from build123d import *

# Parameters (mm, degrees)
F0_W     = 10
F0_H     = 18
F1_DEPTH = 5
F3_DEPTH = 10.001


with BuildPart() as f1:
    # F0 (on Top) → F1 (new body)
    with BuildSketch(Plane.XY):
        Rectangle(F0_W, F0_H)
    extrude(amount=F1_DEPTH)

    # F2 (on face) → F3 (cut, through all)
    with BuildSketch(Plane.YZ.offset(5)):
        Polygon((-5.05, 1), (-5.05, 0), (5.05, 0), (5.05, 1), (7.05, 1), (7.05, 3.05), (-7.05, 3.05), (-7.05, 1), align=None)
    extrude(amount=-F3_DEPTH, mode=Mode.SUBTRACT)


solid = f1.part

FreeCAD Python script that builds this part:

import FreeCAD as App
import Part
import Sketcher


def add_polygon(sketch, points):
    """Adds a closed chain of lines whose ends are joined by coincident constraints."""
    first, n = sketch.GeometryCount, len(points)
    for a, b in zip(points, points[1:] + points[:1]):
        sketch.addGeometry(Part.LineSegment(App.Vector(*a, 0), App.Vector(*b, 0)), False)
    for i in range(n):
        sketch.addConstraint(Sketcher.Constraint("Coincident", first + i, 2, first + (i + 1) % n, 1))

doc = App.newDocument("Part")
body = doc.addObject("PartDesign::Body", "Body")

sketch1 = body.newObject("Sketcher::SketchObject", "Sketch")
sketch1.AttachmentSupport = (doc.getObject("XY_Plane"), [""])
sketch1.MapMode = "FlatFace"
add_polygon(sketch1, [(-5, 9), (-5, -9), (5, -9), (5, 9)])
sketch1.addConstraint(Sketcher.Constraint("Vertical", 0))
sketch1.addConstraint(Sketcher.Constraint("Horizontal", 1))
sketch1.addConstraint(Sketcher.Constraint("Vertical", 2))
sketch1.addConstraint(Sketcher.Constraint("Horizontal", 3))
sketch1.addConstraint(Sketcher.Constraint("Symmetric", 0, 2, 2, 2, -1, 1))
sketch1.addConstraint(Sketcher.Constraint("DistanceX", 1, 1, 1, 2, 10.0))
sketch1.addConstraint(Sketcher.Constraint("DistanceY", 0, 2, 0, 1, 18.0))
pad1 = body.newObject("PartDesign::Pad", "Pad")
pad1.Profile = sketch1
pad1.Length = 5

sketch2 = body.newObject("Sketcher::SketchObject", "Sketch001")
sketch2.AttachmentSupport = (doc.getObject("YZ_Plane"), [""])
sketch2.MapMode = "FlatFace"
sketch2.AttachmentOffset = App.Placement(App.Vector(0, 0, 5), App.Rotation())
add_polygon(sketch2, [(-5.05, 1), (-5.05, 0), (5.05, 0), (5.05, 1), (7.05, 1), (7.05, 3.05), (-7.05, 3.05), (-7.05, 1)])
sketch2.addConstraint(Sketcher.Constraint("Vertical", 0))
sketch2.addConstraint(Sketcher.Constraint("Horizontal", 1))
sketch2.addConstraint(Sketcher.Constraint("Vertical", 2))
sketch2.addConstraint(Sketcher.Constraint("Horizontal", 3))
sketch2.addConstraint(Sketcher.Constraint("Vertical", 4))
sketch2.addConstraint(Sketcher.Constraint("Horizontal", 5))
sketch2.addConstraint(Sketcher.Constraint("Vertical", 6))
sketch2.addConstraint(Sketcher.Constraint("Horizontal", 7))
sketch2.addConstraint(Sketcher.Constraint("Symmetric", 0, 2, 1, 2, -1, 1))
sketch2.addConstraint(Sketcher.Constraint("Symmetric", 3, 2, 6, 2, -2))
sketch2.addConstraint(Sketcher.Constraint("DistanceX", 3, 1, 3, 2, 2.0))
sketch2.addConstraint(Sketcher.Constraint("DistanceY", 0, 2, 0, 1, 1.0))
sketch2.addConstraint(Sketcher.Constraint("DistanceX", 1, 1, 1, 2, 10.1))
sketch2.addConstraint(Sketcher.Constraint("DistanceY", 4, 1, 4, 2, 2.05))
pocket1 = body.newObject("PartDesign::Pocket", "Pocket")
pocket1.Profile = sketch2
pocket1.Type = "ThroughAll"

doc.recompute()
